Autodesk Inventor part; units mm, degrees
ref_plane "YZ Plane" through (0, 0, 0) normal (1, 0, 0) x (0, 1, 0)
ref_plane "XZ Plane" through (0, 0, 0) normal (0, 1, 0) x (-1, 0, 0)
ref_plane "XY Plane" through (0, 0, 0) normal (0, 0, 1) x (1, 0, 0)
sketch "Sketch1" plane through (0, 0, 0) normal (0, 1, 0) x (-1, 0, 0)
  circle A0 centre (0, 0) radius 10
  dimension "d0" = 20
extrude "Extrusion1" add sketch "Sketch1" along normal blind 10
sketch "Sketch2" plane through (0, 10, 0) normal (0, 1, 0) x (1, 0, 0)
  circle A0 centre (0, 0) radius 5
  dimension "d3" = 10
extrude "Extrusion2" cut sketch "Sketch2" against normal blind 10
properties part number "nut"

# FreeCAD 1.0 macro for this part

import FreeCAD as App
import Part
import Sketcher

V = App.Vector
Q = App.Units.Quantity

doc = App.newDocument("Part")
body = doc.addObject("PartDesign::Body", "Body")

sketch1 = body.newObject("Sketcher::SketchObject", "Sketch")
sketch1.AttachmentSupport = (doc.getObject("XZ_Plane"), [""])
sketch1.MapMode = "FlatFace"
sketch1.addGeometry(Part.Circle(V(0, 0, 0), V(0, 0, 1), 10), False)
sketch1.addConstraint([
    Sketcher.Constraint("Coincident", 0, 3, -1, 1),
    Sketcher.Constraint("Diameter", 0, Q("20 mm")),
])
pad1 = body.newObject("PartDesign::Pad", "Pad")
pad1.Profile = sketch1
pad1.Length = 10
pad1.Reversed = True

sketch2 = body.newObject("Sketcher::SketchObject", "Sketch001")
sketch2.AttachmentSupport = (doc.getObject("XZ_Plane"), [""])
sketch2.MapMode = "FlatFace"
sketch2.AttachmentOffset = App.Placement(V(0, 0, -10), App.Rotation())
sketch2.addGeometry(Part.Circle(V(0, 0, 0), V(0, 0, 1), 5), False)
sketch2.addConstraint([
    Sketcher.Constraint("Coincident", 0, 3, -1, 1),
    Sketcher.Constraint("Diameter", 0, Q("10 mm")),
])
pocket1 = body.newObject("PartDesign::Pocket", "Pocket")
pocket1.Profile = sketch2
pocket1.Length = 10
pocket1.Reversed = True

doc.recompute()
